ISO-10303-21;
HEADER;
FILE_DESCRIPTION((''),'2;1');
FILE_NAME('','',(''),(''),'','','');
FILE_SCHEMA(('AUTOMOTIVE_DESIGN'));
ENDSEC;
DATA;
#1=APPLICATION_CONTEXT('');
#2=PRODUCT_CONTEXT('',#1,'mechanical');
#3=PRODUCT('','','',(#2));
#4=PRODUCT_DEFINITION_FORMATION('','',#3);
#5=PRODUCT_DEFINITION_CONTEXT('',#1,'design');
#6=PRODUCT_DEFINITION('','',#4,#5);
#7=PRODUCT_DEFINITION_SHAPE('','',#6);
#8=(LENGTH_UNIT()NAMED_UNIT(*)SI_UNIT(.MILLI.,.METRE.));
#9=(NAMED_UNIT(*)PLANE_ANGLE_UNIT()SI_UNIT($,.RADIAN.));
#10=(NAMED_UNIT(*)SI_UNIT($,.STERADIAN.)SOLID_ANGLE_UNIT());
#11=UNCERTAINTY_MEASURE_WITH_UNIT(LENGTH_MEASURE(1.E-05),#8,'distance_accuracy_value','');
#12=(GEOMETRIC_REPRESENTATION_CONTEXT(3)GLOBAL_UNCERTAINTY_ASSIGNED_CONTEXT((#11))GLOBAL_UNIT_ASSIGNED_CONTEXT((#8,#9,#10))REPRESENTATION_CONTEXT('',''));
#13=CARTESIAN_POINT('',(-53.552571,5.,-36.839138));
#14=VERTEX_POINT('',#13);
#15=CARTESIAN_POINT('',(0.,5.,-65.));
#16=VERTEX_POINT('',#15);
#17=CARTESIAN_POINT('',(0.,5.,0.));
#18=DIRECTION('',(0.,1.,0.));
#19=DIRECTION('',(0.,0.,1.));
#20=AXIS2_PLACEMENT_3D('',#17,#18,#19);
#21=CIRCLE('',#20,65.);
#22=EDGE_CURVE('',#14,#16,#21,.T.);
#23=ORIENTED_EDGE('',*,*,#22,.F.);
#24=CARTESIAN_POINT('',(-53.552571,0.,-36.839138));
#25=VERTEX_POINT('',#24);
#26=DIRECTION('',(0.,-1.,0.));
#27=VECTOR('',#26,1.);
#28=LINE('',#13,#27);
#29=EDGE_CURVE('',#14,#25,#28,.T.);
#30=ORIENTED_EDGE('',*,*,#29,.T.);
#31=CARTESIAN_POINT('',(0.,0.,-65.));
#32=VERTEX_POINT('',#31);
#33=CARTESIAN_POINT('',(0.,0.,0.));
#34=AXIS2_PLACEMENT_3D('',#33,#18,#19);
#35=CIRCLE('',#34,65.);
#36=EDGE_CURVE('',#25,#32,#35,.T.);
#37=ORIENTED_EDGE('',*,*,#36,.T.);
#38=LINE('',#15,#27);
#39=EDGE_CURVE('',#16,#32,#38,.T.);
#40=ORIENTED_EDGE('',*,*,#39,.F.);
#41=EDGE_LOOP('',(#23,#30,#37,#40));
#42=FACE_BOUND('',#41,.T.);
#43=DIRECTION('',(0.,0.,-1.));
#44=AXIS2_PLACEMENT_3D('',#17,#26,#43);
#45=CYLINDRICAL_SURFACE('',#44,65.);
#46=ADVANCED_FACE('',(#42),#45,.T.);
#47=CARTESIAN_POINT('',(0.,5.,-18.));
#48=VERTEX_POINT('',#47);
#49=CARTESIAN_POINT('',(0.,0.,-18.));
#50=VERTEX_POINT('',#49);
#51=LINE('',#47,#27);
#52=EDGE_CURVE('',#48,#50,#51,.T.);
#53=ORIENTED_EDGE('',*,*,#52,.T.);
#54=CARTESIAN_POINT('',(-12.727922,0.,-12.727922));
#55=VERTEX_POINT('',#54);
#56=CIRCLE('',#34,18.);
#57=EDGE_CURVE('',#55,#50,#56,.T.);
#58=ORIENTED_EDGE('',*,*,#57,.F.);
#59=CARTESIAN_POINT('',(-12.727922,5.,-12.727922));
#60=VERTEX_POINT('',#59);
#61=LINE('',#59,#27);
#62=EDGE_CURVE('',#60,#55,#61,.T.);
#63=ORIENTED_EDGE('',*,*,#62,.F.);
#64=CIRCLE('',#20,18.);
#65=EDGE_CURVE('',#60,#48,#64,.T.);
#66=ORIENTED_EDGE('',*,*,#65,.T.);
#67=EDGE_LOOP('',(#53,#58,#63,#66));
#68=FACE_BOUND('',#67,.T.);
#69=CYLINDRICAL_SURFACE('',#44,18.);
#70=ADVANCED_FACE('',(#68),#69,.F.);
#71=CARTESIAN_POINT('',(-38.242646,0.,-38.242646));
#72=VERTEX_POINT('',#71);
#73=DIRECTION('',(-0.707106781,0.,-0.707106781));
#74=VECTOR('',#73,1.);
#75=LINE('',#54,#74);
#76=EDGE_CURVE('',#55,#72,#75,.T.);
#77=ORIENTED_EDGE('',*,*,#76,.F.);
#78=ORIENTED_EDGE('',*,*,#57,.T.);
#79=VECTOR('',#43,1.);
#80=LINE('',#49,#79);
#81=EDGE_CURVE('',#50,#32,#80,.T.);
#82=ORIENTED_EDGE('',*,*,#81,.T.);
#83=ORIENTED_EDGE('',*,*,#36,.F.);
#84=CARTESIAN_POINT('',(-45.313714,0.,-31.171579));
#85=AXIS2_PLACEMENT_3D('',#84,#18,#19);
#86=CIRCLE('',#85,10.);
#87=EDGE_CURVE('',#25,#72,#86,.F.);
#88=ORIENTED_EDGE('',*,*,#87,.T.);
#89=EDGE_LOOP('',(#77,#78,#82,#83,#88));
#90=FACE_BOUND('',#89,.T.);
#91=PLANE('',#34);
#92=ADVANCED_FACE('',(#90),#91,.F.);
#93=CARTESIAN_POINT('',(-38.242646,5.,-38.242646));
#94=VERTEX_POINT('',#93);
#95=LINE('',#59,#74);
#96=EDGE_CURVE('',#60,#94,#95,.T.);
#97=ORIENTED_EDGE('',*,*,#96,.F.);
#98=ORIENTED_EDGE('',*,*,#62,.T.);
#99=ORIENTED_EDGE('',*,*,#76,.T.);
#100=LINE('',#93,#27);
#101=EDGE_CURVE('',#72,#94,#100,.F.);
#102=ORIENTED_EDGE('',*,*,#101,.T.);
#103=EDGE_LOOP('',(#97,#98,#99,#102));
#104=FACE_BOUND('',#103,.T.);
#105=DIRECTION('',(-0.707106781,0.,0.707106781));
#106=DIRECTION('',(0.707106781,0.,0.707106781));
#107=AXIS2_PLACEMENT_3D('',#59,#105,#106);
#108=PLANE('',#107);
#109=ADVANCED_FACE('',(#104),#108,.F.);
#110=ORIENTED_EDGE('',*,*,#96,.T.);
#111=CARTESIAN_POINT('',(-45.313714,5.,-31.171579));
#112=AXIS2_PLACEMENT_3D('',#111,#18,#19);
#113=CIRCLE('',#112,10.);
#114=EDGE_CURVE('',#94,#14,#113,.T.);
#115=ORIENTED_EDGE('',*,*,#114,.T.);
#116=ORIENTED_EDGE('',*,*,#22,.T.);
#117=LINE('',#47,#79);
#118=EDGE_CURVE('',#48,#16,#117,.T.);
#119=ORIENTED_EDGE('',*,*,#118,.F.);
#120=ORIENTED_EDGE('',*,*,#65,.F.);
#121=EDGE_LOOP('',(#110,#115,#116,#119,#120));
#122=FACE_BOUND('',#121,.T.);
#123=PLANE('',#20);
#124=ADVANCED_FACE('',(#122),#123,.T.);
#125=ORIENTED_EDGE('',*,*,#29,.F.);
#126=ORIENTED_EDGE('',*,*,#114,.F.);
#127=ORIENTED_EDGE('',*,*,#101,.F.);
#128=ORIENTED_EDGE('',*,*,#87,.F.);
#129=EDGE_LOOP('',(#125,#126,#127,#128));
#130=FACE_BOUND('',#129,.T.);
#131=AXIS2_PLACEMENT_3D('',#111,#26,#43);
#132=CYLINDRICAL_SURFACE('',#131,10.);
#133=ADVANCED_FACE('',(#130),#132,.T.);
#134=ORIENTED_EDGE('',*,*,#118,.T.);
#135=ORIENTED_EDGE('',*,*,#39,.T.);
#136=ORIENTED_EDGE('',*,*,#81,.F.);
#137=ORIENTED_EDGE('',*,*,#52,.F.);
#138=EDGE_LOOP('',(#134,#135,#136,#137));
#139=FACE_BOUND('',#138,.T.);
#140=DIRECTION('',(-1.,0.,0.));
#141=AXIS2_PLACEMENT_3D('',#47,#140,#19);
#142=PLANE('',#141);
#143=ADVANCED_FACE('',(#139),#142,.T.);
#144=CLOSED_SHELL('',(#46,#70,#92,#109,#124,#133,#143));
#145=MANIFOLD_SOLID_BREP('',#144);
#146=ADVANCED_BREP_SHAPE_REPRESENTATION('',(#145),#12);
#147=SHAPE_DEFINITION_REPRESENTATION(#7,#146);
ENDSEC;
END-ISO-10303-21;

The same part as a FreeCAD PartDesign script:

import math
import FreeCAD as App
import Part
import Sketcher
Q = App.Units.Quantity


def edges_at(feature, points):
    """Names of the edges that pass closest to the given points."""
    edges = feature.Shape.Edges
    near = lambda p: min(range(len(edges)), key=lambda i: edges[i].distToShape(Part.Vertex(*p))[0])
    return sorted({f"Edge{near(p) + 1}" for p in points})

doc = App.newDocument("Part")
body = doc.addObject("PartDesign::Body", "Body")

sketch1 = doc.addObject("Sketcher::SketchObject", "Sketch")
body.addObject(sketch1)
sketch1.AttachmentSupport = (doc.XZ_Plane, [""])
sketch1.MapMode = "FlatFace"
sketch1.addGeometry([
    Part.LineSegment(App.Vector(-13, -13, 0), App.Vector(-46, -46, 0)),
    Part.ArcOfCircle(Part.Circle(App.Vector(0, 0, 0), App.Vector(0, 0, 1), 65), math.radians(-90), math.radians(225)),
    Part.LineSegment(App.Vector(0, -65, 0), App.Vector(0, -18, 0)),
    Part.ArcOfCircle(Part.Circle(App.Vector(0, 0, 0), App.Vector(0, 0, 1), 18), math.radians(-90), math.radians(225)),
], False)
sketch1.addConstraint([
    Sketcher.Constraint("Coincident", 0, 2, 1, 2),
    Sketcher.Constraint("Coincident", 1, 1, 2, 1),
    Sketcher.Constraint("Coincident", 2, 2, 3, 1),
    Sketcher.Constraint("Coincident", 3, 2, 0, 1),
    Sketcher.Constraint("Vertical", 2),
    Sketcher.Constraint("Coincident", 1, 3, -1, 1),
    Sketcher.Constraint("Coincident", 3, 3, -1, 1),
    Sketcher.Constraint("PointOnObject", 1, 1, -2),
    Sketcher.Constraint("Radius", 1, 65.0),
    Sketcher.Constraint("Radius", 3, 18.0),
    Sketcher.Constraint("Angle", 0, Q("-135 deg")),
    Sketcher.Constraint("DistanceX", 0, 2, -1, 1, 45.961941),
])
pad1 = doc.addObject("PartDesign::Pad", "Pad")
body.addObject(pad1)
pad1.Profile = sketch1
pad1.Length = 5
pad1.Reversed = True
doc.recompute()

fillet = doc.addObject("PartDesign::Fillet", "Fillet")
body.addObject(fillet)
fillet.Base = (pad1, edges_at(pad1, [(-45.962, 2.5, -45.962)]))
fillet.Radius = 10

doc.recompute()
